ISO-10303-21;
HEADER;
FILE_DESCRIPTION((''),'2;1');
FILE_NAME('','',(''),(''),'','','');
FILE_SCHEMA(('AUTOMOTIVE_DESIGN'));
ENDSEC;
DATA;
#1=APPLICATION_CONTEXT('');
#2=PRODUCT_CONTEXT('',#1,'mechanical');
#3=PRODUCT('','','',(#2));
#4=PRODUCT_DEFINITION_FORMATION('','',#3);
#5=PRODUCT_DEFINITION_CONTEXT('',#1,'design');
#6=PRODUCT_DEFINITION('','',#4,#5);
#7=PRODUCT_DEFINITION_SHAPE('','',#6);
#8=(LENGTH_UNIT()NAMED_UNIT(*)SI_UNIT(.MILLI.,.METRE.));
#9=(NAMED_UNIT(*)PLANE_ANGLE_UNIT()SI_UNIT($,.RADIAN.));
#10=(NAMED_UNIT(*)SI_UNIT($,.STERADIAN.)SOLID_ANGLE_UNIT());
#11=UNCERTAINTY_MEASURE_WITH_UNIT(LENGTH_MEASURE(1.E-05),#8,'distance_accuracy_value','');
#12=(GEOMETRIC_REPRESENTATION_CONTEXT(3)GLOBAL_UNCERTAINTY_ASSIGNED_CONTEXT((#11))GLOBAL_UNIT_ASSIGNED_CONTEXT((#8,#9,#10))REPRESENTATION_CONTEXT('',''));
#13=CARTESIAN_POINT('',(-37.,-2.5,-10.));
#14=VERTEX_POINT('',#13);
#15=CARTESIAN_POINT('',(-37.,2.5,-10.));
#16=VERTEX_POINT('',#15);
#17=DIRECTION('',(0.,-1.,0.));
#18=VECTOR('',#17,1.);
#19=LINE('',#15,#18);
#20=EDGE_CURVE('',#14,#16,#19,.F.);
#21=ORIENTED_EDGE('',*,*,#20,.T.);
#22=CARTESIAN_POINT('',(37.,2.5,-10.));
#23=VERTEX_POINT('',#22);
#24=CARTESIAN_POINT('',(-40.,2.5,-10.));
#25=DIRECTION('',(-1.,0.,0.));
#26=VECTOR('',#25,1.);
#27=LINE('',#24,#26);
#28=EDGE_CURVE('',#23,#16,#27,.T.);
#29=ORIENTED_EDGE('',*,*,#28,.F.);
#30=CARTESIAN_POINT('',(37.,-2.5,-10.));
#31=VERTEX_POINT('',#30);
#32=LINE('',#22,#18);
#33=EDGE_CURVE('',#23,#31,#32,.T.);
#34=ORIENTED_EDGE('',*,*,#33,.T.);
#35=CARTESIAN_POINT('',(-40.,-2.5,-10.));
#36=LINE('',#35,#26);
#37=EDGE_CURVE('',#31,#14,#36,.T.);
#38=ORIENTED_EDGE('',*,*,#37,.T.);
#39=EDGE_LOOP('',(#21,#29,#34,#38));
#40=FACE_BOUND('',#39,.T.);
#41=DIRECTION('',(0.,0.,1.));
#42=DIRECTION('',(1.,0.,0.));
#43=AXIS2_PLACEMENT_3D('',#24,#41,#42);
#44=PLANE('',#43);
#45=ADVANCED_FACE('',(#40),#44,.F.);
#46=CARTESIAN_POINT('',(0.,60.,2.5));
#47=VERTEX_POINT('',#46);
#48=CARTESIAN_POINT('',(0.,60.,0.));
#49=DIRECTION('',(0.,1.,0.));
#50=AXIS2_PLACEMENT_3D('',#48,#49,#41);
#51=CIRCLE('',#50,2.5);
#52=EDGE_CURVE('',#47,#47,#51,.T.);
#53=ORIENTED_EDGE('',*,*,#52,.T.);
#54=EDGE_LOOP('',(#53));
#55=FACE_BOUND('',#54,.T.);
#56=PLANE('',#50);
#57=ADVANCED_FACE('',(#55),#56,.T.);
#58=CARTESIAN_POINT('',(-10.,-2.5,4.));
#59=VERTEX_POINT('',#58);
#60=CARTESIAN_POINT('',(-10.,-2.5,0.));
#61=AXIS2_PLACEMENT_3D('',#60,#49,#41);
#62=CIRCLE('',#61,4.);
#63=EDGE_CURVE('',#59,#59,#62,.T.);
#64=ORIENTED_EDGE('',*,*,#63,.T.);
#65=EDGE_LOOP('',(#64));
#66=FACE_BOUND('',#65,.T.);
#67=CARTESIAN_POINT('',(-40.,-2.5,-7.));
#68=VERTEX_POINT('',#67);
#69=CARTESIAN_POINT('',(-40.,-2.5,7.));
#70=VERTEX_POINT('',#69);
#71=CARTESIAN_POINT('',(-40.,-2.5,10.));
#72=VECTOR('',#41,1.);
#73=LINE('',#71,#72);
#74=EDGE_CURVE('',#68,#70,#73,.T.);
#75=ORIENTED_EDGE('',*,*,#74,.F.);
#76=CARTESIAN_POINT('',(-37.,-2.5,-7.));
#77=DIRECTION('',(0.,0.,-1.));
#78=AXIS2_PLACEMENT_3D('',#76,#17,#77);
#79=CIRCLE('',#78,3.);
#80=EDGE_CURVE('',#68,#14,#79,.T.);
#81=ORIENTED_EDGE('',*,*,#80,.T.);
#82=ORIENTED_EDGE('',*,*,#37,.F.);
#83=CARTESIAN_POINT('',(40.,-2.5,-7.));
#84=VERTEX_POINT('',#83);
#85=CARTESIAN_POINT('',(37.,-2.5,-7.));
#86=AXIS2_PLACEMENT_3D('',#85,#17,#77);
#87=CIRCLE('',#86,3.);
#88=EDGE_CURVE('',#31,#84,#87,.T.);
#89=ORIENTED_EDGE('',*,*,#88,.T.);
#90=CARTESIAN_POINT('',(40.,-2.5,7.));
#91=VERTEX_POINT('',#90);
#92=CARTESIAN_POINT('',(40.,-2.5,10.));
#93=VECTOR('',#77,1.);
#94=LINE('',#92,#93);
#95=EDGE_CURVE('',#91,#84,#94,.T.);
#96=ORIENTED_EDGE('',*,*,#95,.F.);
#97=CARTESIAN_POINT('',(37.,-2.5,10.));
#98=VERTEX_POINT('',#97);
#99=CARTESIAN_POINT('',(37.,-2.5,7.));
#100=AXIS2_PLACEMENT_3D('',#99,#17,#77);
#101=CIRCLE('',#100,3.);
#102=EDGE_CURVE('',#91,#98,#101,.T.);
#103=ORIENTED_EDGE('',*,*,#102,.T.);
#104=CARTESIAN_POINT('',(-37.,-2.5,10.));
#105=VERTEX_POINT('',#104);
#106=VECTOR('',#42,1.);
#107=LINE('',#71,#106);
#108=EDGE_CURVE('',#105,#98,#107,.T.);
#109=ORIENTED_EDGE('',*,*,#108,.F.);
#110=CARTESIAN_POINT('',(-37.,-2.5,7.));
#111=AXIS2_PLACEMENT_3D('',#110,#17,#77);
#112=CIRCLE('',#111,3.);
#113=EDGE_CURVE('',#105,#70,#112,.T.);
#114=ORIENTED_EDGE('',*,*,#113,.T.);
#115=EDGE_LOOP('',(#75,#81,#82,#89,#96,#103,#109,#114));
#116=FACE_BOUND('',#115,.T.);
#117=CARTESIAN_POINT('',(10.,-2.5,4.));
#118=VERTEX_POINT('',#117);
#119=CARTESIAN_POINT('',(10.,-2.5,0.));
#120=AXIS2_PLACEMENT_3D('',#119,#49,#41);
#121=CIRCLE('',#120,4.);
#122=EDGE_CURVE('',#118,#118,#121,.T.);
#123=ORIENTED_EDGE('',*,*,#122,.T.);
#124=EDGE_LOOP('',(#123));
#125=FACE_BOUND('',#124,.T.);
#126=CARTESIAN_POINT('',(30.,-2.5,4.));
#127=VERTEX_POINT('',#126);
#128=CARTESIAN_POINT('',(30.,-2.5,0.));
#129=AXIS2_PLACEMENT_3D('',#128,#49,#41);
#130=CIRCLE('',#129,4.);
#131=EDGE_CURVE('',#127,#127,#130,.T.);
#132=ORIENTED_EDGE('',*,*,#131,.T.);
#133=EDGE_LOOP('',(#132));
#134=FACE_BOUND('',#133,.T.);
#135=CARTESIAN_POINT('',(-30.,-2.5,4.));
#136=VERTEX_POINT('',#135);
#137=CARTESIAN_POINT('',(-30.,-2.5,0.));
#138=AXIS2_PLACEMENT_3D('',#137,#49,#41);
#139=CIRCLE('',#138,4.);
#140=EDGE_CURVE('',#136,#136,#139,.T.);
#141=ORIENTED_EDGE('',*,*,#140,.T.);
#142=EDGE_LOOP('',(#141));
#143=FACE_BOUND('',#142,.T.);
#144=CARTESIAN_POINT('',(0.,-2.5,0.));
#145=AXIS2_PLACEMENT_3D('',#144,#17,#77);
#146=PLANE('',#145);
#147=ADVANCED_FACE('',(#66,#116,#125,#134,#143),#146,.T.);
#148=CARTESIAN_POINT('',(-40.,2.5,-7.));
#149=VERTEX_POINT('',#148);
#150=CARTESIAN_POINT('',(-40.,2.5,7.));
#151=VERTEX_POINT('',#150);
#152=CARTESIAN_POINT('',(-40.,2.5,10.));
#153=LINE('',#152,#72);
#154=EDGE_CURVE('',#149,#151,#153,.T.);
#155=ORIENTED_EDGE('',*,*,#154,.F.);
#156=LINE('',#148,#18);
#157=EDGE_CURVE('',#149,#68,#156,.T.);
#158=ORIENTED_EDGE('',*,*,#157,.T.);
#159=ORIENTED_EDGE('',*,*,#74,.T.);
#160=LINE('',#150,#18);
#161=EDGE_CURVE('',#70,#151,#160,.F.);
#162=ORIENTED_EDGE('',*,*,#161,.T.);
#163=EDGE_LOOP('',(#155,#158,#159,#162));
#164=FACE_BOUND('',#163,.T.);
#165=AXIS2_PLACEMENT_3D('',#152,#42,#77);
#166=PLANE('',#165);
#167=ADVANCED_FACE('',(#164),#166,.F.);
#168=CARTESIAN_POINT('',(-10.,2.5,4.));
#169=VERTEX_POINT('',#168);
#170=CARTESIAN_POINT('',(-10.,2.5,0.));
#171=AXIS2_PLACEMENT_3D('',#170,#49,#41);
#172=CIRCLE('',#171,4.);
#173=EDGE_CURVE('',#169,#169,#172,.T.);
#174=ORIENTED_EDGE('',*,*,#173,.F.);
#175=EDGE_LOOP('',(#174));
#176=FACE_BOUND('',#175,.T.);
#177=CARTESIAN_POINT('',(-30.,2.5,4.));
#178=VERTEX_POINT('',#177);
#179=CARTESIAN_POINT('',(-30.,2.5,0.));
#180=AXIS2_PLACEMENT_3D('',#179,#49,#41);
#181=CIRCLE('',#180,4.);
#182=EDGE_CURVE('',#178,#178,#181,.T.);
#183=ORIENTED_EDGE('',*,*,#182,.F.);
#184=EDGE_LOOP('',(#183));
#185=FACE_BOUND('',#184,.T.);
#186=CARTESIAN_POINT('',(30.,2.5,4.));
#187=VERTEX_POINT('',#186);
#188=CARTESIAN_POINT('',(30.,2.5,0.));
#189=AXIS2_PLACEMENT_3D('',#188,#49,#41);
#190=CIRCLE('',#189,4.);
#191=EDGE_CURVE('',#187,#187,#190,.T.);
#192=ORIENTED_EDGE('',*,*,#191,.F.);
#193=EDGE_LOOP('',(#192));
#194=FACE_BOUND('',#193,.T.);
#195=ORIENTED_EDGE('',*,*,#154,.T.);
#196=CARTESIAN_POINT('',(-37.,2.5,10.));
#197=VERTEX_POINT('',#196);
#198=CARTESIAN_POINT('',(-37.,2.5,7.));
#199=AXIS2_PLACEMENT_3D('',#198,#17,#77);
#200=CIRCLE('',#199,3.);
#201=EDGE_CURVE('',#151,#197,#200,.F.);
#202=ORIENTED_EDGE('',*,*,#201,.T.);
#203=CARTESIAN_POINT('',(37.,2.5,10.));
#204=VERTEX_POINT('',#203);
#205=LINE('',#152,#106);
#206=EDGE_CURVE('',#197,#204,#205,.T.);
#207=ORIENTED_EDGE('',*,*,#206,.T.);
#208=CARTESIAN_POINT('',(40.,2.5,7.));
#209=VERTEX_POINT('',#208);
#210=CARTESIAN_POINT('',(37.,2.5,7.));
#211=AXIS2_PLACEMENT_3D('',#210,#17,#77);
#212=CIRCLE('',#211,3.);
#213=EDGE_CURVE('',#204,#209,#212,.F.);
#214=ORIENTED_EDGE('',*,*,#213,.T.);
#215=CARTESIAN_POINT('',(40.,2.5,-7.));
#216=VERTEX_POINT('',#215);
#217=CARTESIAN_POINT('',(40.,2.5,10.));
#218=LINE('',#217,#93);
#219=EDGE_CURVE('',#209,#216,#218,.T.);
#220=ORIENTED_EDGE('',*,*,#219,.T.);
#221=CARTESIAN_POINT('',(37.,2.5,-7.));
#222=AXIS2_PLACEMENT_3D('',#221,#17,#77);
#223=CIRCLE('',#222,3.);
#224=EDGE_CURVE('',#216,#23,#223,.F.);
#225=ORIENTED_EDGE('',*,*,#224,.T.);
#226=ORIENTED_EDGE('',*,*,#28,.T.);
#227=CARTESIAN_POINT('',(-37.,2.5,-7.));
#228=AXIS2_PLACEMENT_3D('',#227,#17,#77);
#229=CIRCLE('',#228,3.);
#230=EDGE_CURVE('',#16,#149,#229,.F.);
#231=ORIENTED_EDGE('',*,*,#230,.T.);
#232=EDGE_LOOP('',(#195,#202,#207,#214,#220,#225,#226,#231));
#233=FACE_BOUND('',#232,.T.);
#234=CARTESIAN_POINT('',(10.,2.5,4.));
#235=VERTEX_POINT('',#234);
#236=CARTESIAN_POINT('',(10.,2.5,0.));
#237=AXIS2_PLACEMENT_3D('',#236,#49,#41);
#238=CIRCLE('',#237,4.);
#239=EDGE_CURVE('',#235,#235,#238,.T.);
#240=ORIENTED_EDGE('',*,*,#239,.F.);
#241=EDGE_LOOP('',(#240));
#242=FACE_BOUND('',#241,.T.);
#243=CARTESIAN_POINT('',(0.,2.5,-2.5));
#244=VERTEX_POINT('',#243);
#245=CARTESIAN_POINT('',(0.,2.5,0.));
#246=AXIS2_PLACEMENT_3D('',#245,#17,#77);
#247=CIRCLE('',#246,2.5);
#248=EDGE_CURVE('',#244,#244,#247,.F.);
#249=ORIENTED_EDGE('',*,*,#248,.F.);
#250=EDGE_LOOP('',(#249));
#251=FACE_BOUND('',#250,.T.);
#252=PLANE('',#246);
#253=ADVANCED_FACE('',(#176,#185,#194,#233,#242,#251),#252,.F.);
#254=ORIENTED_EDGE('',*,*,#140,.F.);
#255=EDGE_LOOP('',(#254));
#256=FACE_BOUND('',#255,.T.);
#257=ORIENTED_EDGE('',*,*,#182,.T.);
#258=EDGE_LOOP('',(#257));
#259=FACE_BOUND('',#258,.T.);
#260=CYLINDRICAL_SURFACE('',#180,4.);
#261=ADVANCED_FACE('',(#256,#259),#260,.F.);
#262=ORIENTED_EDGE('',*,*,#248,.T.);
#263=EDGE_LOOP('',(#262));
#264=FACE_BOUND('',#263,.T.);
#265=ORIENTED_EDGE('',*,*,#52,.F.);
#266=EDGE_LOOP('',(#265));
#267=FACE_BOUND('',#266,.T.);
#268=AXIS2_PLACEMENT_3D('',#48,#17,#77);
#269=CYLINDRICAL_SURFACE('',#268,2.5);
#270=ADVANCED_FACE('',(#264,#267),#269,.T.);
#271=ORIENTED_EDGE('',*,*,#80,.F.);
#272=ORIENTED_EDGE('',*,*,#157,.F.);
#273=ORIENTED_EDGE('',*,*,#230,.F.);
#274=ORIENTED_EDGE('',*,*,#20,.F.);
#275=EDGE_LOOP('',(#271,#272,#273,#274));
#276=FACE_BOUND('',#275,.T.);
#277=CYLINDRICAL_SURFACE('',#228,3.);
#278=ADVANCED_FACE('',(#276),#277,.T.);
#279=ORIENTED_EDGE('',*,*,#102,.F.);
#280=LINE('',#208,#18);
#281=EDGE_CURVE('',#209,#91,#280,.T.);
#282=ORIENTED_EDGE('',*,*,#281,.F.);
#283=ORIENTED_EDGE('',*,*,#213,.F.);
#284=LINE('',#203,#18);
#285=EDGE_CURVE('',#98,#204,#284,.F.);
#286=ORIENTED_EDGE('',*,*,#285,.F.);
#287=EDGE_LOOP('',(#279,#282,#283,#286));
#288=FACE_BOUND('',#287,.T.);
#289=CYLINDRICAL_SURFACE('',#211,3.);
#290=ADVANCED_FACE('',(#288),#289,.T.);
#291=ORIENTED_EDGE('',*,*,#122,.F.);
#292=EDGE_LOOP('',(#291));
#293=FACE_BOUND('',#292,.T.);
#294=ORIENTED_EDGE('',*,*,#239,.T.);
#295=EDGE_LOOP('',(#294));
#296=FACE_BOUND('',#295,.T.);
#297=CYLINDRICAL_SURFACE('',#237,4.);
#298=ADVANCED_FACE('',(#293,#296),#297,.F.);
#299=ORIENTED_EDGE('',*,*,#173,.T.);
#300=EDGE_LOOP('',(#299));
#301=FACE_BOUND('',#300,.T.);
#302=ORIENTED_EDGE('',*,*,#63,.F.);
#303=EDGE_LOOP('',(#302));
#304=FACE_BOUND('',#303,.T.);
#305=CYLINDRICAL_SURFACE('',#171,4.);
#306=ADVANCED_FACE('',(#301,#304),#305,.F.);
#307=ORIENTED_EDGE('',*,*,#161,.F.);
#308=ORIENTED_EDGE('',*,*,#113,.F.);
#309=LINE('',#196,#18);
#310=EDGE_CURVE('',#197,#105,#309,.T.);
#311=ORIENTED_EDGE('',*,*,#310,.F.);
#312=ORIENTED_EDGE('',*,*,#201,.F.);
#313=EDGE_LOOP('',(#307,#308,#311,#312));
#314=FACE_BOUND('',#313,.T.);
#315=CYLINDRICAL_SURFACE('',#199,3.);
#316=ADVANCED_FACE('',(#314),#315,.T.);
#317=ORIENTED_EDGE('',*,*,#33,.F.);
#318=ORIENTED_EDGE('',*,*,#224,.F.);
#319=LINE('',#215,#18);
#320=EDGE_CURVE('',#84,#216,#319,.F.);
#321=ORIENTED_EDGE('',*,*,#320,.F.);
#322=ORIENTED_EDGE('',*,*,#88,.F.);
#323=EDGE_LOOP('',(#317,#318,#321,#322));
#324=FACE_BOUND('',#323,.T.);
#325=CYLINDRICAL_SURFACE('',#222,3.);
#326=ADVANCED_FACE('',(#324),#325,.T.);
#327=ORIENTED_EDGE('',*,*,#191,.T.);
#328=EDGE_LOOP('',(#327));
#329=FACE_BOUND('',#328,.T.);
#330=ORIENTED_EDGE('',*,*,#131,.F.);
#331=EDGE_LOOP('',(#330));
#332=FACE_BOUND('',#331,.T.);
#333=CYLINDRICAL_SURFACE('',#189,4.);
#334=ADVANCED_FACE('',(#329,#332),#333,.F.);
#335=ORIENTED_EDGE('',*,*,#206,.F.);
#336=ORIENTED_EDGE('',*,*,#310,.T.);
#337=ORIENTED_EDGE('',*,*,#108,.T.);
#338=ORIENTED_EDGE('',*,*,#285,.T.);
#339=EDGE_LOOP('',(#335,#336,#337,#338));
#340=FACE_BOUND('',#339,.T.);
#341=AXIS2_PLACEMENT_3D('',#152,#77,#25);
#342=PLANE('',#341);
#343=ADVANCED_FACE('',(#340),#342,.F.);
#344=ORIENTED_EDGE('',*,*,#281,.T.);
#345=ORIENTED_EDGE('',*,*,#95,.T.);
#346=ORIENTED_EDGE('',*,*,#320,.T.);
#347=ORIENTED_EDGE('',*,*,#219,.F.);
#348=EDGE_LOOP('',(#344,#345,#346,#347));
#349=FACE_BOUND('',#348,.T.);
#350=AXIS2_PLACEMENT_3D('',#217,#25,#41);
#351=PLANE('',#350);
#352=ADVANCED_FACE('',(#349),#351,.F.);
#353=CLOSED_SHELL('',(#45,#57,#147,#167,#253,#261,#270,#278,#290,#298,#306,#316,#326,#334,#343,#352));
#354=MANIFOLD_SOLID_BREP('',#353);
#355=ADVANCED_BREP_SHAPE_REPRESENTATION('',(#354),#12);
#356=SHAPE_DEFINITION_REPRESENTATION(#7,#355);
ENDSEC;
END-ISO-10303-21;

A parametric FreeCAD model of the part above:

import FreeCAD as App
import Part
import Sketcher


def edges_at(feature, points):
    """Names of the edges that pass closest to the given points."""
    edges = feature.Shape.Edges
    near = lambda p: min(range(len(edges)), key=lambda i: edges[i].distToShape(Part.Vertex(*p))[0])
    return sorted({f"Edge{near(p) + 1}" for p in points})


def add_polygon(sketch, points):
    """Adds a closed chain of lines whose ends are joined by coincident constraints."""
    first, n = sketch.GeometryCount, len(points)
    for a, b in zip(points, points[1:] + points[:1]):
        sketch.addGeometry(Part.LineSegment(App.Vector(*a, 0), App.Vector(*b, 0)), False)
    for i in range(n):
        sketch.addConstraint(Sketcher.Constraint("Coincident", first + i, 2, first + (i + 1) % n, 1))

doc = App.newDocument("Part")
body = doc.addObject("PartDesign::Body", "Body")

# Sketch on XZ plane
sketch1 = body.newObject("Sketcher::SketchObject", "Sketch")
sketch1.AttachmentSupport = (doc.getObject("XZ_Plane"), [""])
sketch1.MapMode = "FlatFace"
add_polygon(sketch1, [(-40, -10), (-40, 10), (40, 10), (40, -10)])  # lines 0-3
sketch1.addConstraint([
    Sketcher.Constraint("Vertical", 0),
    Sketcher.Constraint("Horizontal", 1),
    Sketcher.Constraint("Vertical", 2),
    Sketcher.Constraint("Horizontal", 3),
    Sketcher.Constraint("Symmetric", 0, 2, 2, 2, -1, 1),
    Sketcher.Constraint("DistanceX", 1, 1, 1, 2, 80.0),
    Sketcher.Constraint("DistanceY", 0, 1, 0, 2, 20.0),
])
pad1 = body.newObject("PartDesign::Pad", "Pad")
pad1.Profile = sketch1
pad1.Length = 5
pad1.Midplane = True

# Sketch on XZ plane
sketch2 = body.newObject("Sketcher::SketchObject", "Sketch001")
sketch2.AttachmentSupport = (doc.getObject("XZ_Plane"), [""])
sketch2.MapMode = "FlatFace"
sketch2.AttachmentOffset = App.Placement(App.Vector(0, 0, -2.5), App.Rotation())
sketch2.addGeometry([
    Part.Circle(App.Vector(-30, 0, 0), App.Vector(0, 0, 1), 4),
    Part.Circle(App.Vector(-10, 0, 0), App.Vector(0, 0, 1), 4),
    Part.Circle(App.Vector(10, 0, 0), App.Vector(0, 0, 1), 4),
    Part.Circle(App.Vector(30, 0, 0), App.Vector(0, 0, 1), 4),
], False)
sketch2.addConstraint([
    Sketcher.Constraint("Equal", 0, 1),
    Sketcher.Constraint("Equal", 1, 2),
    Sketcher.Constraint("Equal", 2, 3),
    Sketcher.Constraint("Symmetric", 1, 3, 2, 3, -1, 1),
    Sketcher.Constraint("Symmetric", 0, 3, 3, 3, -1, 1),
    Sketcher.Constraint("PointOnObject", 0, 3, -1),
    Sketcher.Constraint("PointOnObject", 1, 3, -1),
    Sketcher.Constraint("Diameter", 0, 8.0),
    Sketcher.Constraint("DistanceX", 0, 3, -1, 1, 30.0),
    Sketcher.Constraint("DistanceX", 1, 3, -1, 1, 10.0),
])
doc.recompute()
hole = body.newObject("PartDesign::Hole", "Hole")
hole.Profile = sketch2
hole.ThreadType = "None"
hole.Diameter = 8
hole.DepthType = "ThroughAll"
hole.Reversed = True

# Sketch on XZ plane
sketch3 = body.newObject("Sketcher::SketchObject", "Sketch002")
sketch3.AttachmentSupport = (doc.getObject("XZ_Plane"), [""])
sketch3.MapMode = "FlatFace"
sketch3.addGeometry(Part.Circle(App.Vector(0, 0, 0), App.Vector(0, 0, 1), 2.5), False)
sketch3.addConstraint([
    Sketcher.Constraint("Coincident", 0, 3, -1, 1),
    Sketcher.Constraint("Diameter", 0, 5.0),
])
pad2 = body.newObject("PartDesign::Pad", "Pad001")
pad2.Profile = sketch3
pad2.Length = 60
pad2.Reversed = True
doc.recompute()

fillet = body.newObject("PartDesign::Fillet", "Fillet")
fillet.Base = (pad2, edges_at(pad2, [
    (40, 0, 10),
    (-40, 0, 10),
    (-40, 0, -10),
    (40, 0, -10),
]))
fillet.Radius = 3

doc.recompute()
